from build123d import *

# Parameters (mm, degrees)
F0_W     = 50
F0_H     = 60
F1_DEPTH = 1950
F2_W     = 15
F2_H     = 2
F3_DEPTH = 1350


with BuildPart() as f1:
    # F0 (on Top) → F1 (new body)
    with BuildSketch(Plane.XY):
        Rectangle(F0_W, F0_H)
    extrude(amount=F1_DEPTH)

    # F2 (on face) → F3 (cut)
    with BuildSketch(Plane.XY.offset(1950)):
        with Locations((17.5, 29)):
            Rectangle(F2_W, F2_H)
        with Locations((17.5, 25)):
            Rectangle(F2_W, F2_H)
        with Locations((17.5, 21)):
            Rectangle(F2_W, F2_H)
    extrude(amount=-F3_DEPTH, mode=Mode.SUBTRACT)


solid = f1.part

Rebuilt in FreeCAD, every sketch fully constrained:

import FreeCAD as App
import Part
import Sketcher

doc = App.newDocument("Part")
body = doc.addObject("PartDesign::Body", "Body")

sketch1 = body.newObject("Sketcher::SketchObject", "Sketch")
sketch1.AttachmentSupport = (doc.getObject("XY_Plane"), [""])
sketch1.MapMode = "FlatFace"
sketch1.addGeometry([
    Part.LineSegment(App.Vector(-25, 30, 0), App.Vector(-25, -30, 0)),
    Part.LineSegment(App.Vector(-25, -30, 0), App.Vector(25, -30, 0)),
    Part.LineSegment(App.Vector(25, -30, 0), App.Vector(25, 30, 0)),
    Part.LineSegment(App.Vector(25, 30, 0), App.Vector(-25, 30, 0)),
], False)
sketch1.addConstraint([
    Sketcher.Constraint("Coincident", 0, 2, 1, 1),
    Sketcher.Constraint("Coincident", 1, 2, 2, 1),
    Sketcher.Constraint("Coincident", 2, 2, 3, 1),
    Sketcher.Constraint("Coincident", 3, 2, 0, 1),
    Sketcher.Constraint("Vertical", 0),
    Sketcher.Constraint("Horizontal", 1),
    Sketcher.Constraint("Vertical", 2),
    Sketcher.Constraint("Horizontal", 3),
    Sketcher.Constraint("Symmetric", 0, 2, 2, 2, -1, 1),
    Sketcher.Constraint("DistanceX", 1, 1, 1, 2, 50.0),
    Sketcher.Constraint("DistanceY", 0, 2, 0, 1, 60.0),
])
pad1 = body.newObject("PartDesign::Pad", "Pad")
pad1.Profile = sketch1
pad1.Length = 1950

sketch2 = body.newObject("Sketcher::SketchObject", "Sketch001")
sketch2.AttachmentSupport = (doc.getObject("XY_Plane"), [""])
sketch2.MapMode = "FlatFace"
sketch2.AttachmentOffset = App.Placement(App.Vector(0, 0, 1950), App.Rotation())
sketch2.addGeometry([
    Part.LineSegment(App.Vector(10, 30, 0), App.Vector(10, 28, 0)),
    Part.LineSegment(App.Vector(10, 28, 0), App.Vector(25, 28, 0)),
    Part.LineSegment(App.Vector(25, 28, 0), App.Vector(25, 30, 0)),
    Part.LineSegment(App.Vector(25, 30, 0), App.Vector(10, 30, 0)),
    Part.LineSegment(App.Vector(10, 26, 0), App.Vector(10, 24, 0)),
    Part.LineSegment(App.Vector(10, 24, 0), App.Vector(25, 24, 0)),
    Part.LineSegment(App.Vector(25, 24, 0), App.Vector(25, 26, 0)),
    Part.LineSegment(App.Vector(25, 26, 0), App.Vector(10, 26, 0)),
    Part.LineSegment(App.Vector(10, 22, 0), App.Vector(10, 20, 0)),
    Part.LineSegment(App.Vector(10, 20, 0), App.Vector(25, 20, 0)),
    Part.LineSegment(App.Vector(25, 20, 0), App.Vector(25, 22, 0)),
    Part.LineSegment(App.Vector(25, 22, 0), App.Vector(10, 22, 0)),
], False)
sketch2.addConstraint([
    Sketcher.Constraint("Coincident", 0, 2, 1, 1),
    Sketcher.Constraint("Coincident", 1, 2, 2, 1),
    Sketcher.Constraint("Coincident", 2, 2, 3, 1),
    Sketcher.Constraint("Coincident", 3, 2, 0, 1),
    Sketcher.Constraint("Coincident", 4, 2, 5, 1),
    Sketcher.Constraint("Coincident", 5, 2, 6, 1),
    Sketcher.Constraint("Coincident", 6, 2, 7, 1),
    Sketcher.Constraint("Coincident", 7, 2, 4, 1),
    Sketcher.Constraint("Coincident", 8, 2, 9, 1),
    Sketcher.Constraint("Coincident", 9, 2, 10, 1),
    Sketcher.Constraint("Coincident", 10, 2, 11, 1),
    Sketcher.Constraint("Coincident", 11, 2, 8, 1),
    Sketcher.Constraint("Vertical", 0),
    Sketcher.Constraint("Horizontal", 1),
    Sketcher.Constraint("Vertical", 2),
    Sketcher.Constraint("Horizontal", 3),
    Sketcher.Constraint("Vertical", 4),
    Sketcher.Constraint("Horizontal", 5),
    Sketcher.Constraint("Vertical", 6),
    Sketcher.Constraint("Horizontal", 7),
    Sketcher.Constraint("Vertical", 8),
    Sketcher.Constraint("Horizontal", 9),
    Sketcher.Constraint("Vertical", 10),
    Sketcher.Constraint("Horizontal", 11),
    Sketcher.Constraint("Vertical", 3, 2, 4, 2),
    Sketcher.Constraint("Vertical", 2, 2, 5, 2),
    Sketcher.Constraint("Vertical", 7, 2, 8, 2),
    Sketcher.Constraint("Vertical", 6, 2, 9, 2),
    Sketcher.Constraint("Equal", 2, 4),
    Sketcher.Constraint("Equal", 6, 8),
    Sketcher.Constraint("DistanceX", 1, 1, 1, 2, 15.0),
    Sketcher.Constraint("DistanceY", 0, 2, 0, 1, 2.0),
    Sketcher.Constraint("DistanceX", -1, 1, 0, 2, 10.0),
    Sketcher.Constraint("DistanceY", -1, 1, 0, 2, 28.0),
    Sketcher.Constraint("DistanceY", -1, 1, 4, 2, 24.0),
    Sketcher.Constraint("DistanceY", -1, 1, 8, 2, 20.0),
])
pocket1 = body.newObject("PartDesign::Pocket", "Pocket")
pocket1.Profile = sketch2
pocket1.Length = 1350

doc.recompute()
